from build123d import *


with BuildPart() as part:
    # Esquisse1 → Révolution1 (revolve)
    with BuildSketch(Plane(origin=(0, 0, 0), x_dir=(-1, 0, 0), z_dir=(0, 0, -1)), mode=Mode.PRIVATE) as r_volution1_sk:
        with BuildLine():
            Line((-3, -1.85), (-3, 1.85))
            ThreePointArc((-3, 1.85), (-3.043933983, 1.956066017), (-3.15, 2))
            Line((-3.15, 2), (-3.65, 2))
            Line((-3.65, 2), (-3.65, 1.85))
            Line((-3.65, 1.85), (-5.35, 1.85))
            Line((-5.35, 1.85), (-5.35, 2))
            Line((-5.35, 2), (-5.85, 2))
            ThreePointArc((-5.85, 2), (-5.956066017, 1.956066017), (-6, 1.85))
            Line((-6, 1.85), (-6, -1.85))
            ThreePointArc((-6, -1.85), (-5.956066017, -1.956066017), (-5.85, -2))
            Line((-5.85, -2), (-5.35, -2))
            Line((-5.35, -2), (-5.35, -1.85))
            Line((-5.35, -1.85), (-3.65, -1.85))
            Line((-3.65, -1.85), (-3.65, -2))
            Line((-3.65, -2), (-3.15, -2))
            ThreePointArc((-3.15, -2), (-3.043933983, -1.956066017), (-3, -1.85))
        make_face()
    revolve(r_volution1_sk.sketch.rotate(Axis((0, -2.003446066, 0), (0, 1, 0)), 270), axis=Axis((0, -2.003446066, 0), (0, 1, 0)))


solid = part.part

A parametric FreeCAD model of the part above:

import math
import FreeCAD as App
import Part
import Sketcher

V = App.Vector
Q = App.Units.Quantity

doc = App.newDocument("Part")
params = doc.addObject("Spreadsheet::Sheet", "Params")
for row, (alias, value) in enumerate([
    ("sketch1_radius", "0.15 mm"),
    ("sketch1_width", "0.5 mm"),
    ("sketch1_width2", "1.7 mm"),
    ("sketch1_height", "3.7 mm"),
    ("revolution_angle", "360 deg"),
], start=1):
    params.set(f"A{row}", alias)
    params.set(f"B{row}", "=" + value)
    params.setAlias(f"B{row}", alias)

body = doc.addObject("PartDesign::Body", "Body")

# Sketch on XY plane
sketch1 = body.newObject("Sketcher::SketchObject", "Sketch")
sketch1.AttachmentSupport = (doc.getObject("XY_Plane"), [""])
sketch1.MapMode = "FlatFace"
sketch1.addGeometry(Part.LineSegment(V(3, -1.85, 0), V(3, 1.85, 0)), False)
sketch1.addGeometry(Part.ArcOfCircle(Part.Circle(V(3.15, 1.85, 0), V(0, 0, 1), 0.15), math.radians(90), math.radians(180)), False)
sketch1.addGeometry(Part.LineSegment(V(3.15, 2, 0), V(3.65, 2, 0)), False)
sketch1.addGeometry(Part.LineSegment(V(3.65, 2, 0), V(3.65, 1.85, 0)), False)
sketch1.addGeometry(Part.LineSegment(V(3.65, 1.85, 0), V(5.35, 1.85, 0)), False)
sketch1.addGeometry(Part.LineSegment(V(5.35, 1.85, 0), V(5.35, 2, 0)), False)
sketch1.addGeometry(Part.LineSegment(V(5.35, 2, 0), V(5.85, 2, 0)), False)
sketch1.addGeometry(Part.ArcOfCircle(Part.Circle(V(5.85, 1.85, 0), V(0, 0, 1), 0.15), math.radians(0), math.radians(90)), False)
sketch1.addGeometry(Part.LineSegment(V(6, 1.85, 0), V(6, -1.85, 0)), False)
sketch1.addGeometry(Part.ArcOfCircle(Part.Circle(V(5.85, -1.85, 0), V(0, 0, 1), 0.15), math.radians(-90), math.radians(0)), False)
sketch1.addGeometry(Part.LineSegment(V(5.85, -2, 0), V(5.35, -2, 0)), False)
sketch1.addGeometry(Part.LineSegment(V(5.35, -2, 0), V(5.35, -1.85, 0)), False)
sketch1.addGeometry(Part.LineSegment(V(5.35, -1.85, 0), V(3.65, -1.85, 0)), False)
sketch1.addGeometry(Part.LineSegment(V(3.65, -1.85, 0), V(3.65, -2, 0)), False)
sketch1.addGeometry(Part.LineSegment(V(3.65, -2, 0), V(3.15, -2, 0)), False)
sketch1.addGeometry(Part.ArcOfCircle(Part.Circle(V(3.15, -1.85, 0), V(0, 0, 1), 0.15), math.radians(-180), math.radians(-90)), False)
sketch1.addConstraint(Sketcher.Constraint("Tangent", 0, 2, 1, 2))
sketch1.addConstraint(Sketcher.Constraint("Tangent", 1, 1, 2, 1))
sketch1.addConstraint(Sketcher.Constraint("Coincident", 2, 2, 3, 1))
sketch1.addConstraint(Sketcher.Constraint("Coincident", 3, 2, 4, 1))
sketch1.addConstraint(Sketcher.Constraint("Coincident", 4, 2, 5, 1))
sketch1.addConstraint(Sketcher.Constraint("Coincident", 5, 2, 6, 1))
sketch1.addConstraint(Sketcher.Constraint("Tangent", 6, 2, 7, 2))
sketch1.addConstraint(Sketcher.Constraint("Tangent", 7, 1, 8, 1))
sketch1.addConstraint(Sketcher.Constraint("Tangent", 8, 2, 9, 2))
sketch1.addConstraint(Sketcher.Constraint("Tangent", 9, 1, 10, 1))
sketch1.addConstraint(Sketcher.Constraint("Coincident", 10, 2, 11, 1))
sketch1.addConstraint(Sketcher.Constraint("Coincident", 11, 2, 12, 1))
sketch1.addConstraint(Sketcher.Constraint("Coincident", 12, 2, 13, 1))
sketch1.addConstraint(Sketcher.Constraint("Coincident", 13, 2, 14, 1))
sketch1.addConstraint(Sketcher.Constraint("Tangent", 14, 2, 15, 2))
sketch1.addConstraint(Sketcher.Constraint("Tangent", 15, 1, 0, 1))
sketch1.addConstraint(Sketcher.Constraint("Vertical", 0))
sketch1.addConstraint(Sketcher.Constraint("Horizontal", 2))
sketch1.addConstraint(Sketcher.Constraint("Vertical", 3))
sketch1.addConstraint(Sketcher.Constraint("Horizontal", 4))
sketch1.addConstraint(Sketcher.Constraint("Vertical", 5))
sketch1.addConstraint(Sketcher.Constraint("Horizontal", 6))
sketch1.addConstraint(Sketcher.Constraint("Vertical", 8))
sketch1.addConstraint(Sketcher.Constraint("Horizontal", 10))
sketch1.addConstraint(Sketcher.Constraint("Vertical", 11))
sketch1.addConstraint(Sketcher.Constraint("Horizontal", 12))
sketch1.addConstraint(Sketcher.Constraint("Vertical", 13))
sketch1.addConstraint(Sketcher.Constraint("Horizontal", 14))
sketch1.addConstraint(Sketcher.Constraint("Equal", 1, 7))
sketch1.addConstraint(Sketcher.Constraint("Equal", 7, 9))
sketch1.addConstraint(Sketcher.Constraint("Equal", 9, 15))
sketch1.addConstraint(Sketcher.Constraint("Symmetric", 5, 2, 10, 2, -1))
sketch1.addConstraint(Sketcher.Constraint("Symmetric", 3, 2, 12, 2, -1))
sketch1.addConstraint(Sketcher.Constraint("Horizontal", 1, 3, 7, 3))
sketch1.addConstraint(Sketcher.Constraint("Horizontal", 9, 3, 15, 3))
sketch1.addConstraint(Sketcher.Constraint("Horizontal", 0, 2, 3, 2))
sketch1.addConstraint(Sketcher.Constraint("Equal", 2, 6))
sketch1.addConstraint(Sketcher.Constraint("Radius", 1, Q("0.15 mm")))
sketch1.addConstraint(Sketcher.Constraint("DistanceX", 2, 1, 2, 2, Q("0.5 mm")))
sketch1.addConstraint(Sketcher.Constraint("DistanceX", 4, 1, 4, 2, Q("1.7 mm")))
sketch1.addConstraint(Sketcher.Constraint("DistanceY", 0, 1, 0, 2, Q("3.7 mm")))
sketch1.addConstraint(Sketcher.Constraint("DistanceX", -1, 1, 0, 2, Q("3 mm")))
sketch1.setExpression("Constraints[37]", "Params.sketch1_radius")
sketch1.setExpression("Constraints[38]", "Params.sketch1_width")
sketch1.setExpression("Constraints[39]", "Params.sketch1_width2")
sketch1.setExpression("Constraints[40]", "Params.sketch1_height")
revolution = body.newObject("PartDesign::Revolution", "Revolution")
revolution.Profile = sketch1
revolution.ReferenceAxis = (sketch1, ["V_Axis"])
revolution.setExpression("Angle", "Params.revolution_angle")

doc.recompute()
